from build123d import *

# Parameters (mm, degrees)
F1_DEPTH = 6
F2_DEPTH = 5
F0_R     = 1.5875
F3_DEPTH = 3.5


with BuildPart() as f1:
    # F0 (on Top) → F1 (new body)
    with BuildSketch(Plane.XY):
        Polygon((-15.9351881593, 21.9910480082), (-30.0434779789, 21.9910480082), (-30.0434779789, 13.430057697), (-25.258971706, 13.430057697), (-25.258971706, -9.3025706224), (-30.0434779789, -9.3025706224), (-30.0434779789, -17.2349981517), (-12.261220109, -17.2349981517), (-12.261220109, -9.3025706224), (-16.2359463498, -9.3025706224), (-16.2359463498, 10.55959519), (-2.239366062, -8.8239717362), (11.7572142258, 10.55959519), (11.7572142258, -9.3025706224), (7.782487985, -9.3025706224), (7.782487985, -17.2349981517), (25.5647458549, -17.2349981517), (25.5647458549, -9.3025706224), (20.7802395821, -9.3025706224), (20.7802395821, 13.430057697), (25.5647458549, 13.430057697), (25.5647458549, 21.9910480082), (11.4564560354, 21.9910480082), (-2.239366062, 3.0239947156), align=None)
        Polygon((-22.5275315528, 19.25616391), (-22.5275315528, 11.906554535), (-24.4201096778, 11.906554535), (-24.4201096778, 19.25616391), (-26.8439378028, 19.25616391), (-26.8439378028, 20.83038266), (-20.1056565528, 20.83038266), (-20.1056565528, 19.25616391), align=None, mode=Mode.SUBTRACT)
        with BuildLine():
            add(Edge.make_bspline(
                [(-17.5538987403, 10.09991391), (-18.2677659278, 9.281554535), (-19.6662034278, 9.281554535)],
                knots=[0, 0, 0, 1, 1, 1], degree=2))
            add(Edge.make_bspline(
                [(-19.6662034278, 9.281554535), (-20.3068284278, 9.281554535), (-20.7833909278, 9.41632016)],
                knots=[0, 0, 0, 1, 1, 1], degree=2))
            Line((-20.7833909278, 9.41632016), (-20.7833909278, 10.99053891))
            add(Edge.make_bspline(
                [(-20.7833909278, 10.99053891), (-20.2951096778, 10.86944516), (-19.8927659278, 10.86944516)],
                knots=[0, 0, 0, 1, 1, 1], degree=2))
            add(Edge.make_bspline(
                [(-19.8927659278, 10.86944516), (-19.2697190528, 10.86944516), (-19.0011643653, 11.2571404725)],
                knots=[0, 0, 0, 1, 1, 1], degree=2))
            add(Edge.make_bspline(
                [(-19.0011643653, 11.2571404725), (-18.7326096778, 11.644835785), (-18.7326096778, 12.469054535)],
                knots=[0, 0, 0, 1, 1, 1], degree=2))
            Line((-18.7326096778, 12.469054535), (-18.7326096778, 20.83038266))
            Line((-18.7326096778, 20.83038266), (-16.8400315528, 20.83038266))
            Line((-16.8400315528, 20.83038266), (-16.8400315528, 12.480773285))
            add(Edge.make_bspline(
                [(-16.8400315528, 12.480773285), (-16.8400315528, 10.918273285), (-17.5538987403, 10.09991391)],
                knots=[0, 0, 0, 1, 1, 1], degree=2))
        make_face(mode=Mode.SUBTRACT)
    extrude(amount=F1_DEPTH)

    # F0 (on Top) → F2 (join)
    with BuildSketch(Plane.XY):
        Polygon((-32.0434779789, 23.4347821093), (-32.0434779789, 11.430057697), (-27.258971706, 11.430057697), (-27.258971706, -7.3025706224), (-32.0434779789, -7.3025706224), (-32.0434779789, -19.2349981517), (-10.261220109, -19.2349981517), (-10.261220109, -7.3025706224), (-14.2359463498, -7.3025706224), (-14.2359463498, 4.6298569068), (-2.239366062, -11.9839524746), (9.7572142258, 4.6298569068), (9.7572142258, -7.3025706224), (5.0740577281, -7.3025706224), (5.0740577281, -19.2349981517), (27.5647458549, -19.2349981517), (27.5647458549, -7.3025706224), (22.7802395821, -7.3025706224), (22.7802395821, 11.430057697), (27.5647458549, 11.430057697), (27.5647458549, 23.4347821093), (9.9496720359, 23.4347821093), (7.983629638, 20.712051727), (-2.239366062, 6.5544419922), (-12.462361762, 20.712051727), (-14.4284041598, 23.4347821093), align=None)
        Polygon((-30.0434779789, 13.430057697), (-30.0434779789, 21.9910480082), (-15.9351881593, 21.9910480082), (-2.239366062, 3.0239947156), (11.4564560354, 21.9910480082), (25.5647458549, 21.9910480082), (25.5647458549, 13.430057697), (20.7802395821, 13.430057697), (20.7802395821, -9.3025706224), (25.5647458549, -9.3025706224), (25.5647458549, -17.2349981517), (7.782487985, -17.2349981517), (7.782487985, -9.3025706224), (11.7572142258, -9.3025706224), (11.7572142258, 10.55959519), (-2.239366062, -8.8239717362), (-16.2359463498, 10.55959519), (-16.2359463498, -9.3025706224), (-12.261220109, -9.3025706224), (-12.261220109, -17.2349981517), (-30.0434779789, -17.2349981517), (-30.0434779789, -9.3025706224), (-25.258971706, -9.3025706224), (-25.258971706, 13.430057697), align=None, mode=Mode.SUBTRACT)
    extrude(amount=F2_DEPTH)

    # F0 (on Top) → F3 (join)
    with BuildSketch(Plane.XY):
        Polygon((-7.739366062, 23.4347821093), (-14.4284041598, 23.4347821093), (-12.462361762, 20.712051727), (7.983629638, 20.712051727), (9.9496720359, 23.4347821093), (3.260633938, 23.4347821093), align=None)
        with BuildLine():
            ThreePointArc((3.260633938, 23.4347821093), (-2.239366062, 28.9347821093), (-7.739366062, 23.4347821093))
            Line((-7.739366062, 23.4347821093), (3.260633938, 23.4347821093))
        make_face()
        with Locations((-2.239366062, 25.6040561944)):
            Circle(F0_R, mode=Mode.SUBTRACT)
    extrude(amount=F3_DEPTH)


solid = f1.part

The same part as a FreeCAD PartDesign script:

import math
import FreeCAD as App
import Part
import Sketcher
from FreeCAD import Vector
Q = App.Units.Quantity

doc = App.newDocument("Part")
body = doc.addObject("PartDesign::Body", "Body")

# Sketch on XY plane
sketch1 = body.newObject("Sketcher::SketchObject", "Sketch")
sketch1.AttachmentSupport = (doc.getObject("XY_Plane"), [""])
sketch1.MapMode = "FlatFace"
sketch1.addGeometry(Part.LineSegment(Vector(-15.935188, 21.991048, 0), Vector(-30.043478, 21.991048, 0)), False)
sketch1.addGeometry(Part.LineSegment(Vector(-30.043478, 21.991048, 0), Vector(-30.043478, 13.430058, 0)), False)
sketch1.addGeometry(Part.LineSegment(Vector(-30.043478, 13.430058, 0), Vector(-25.258972, 13.430058, 0)), False)
sketch1.addGeometry(Part.LineSegment(Vector(-25.258972, 13.430058, 0), Vector(-25.258972, -9.302571, 0)), False)
sketch1.addGeometry(Part.LineSegment(Vector(-25.258972, -9.302571, 0), Vector(-30.043478, -9.302571, 0)), False)
sketch1.addGeometry(Part.LineSegment(Vector(-30.043478, -9.302571, 0), Vector(-30.043478, -17.234998, 0)), False)
sketch1.addGeometry(Part.LineSegment(Vector(-30.043478, -17.234998, 0), Vector(-12.26122, -17.234998, 0)), False)
sketch1.addGeometry(Part.LineSegment(Vector(-12.26122, -17.234998, 0), Vector(-12.26122, -9.302571, 0)), False)
sketch1.addGeometry(Part.LineSegment(Vector(-12.26122, -9.302571, 0), Vector(-16.235946, -9.302571, 0)), False)
sketch1.addGeometry(Part.LineSegment(Vector(-16.235946, -9.302571, 0), Vector(-16.235946, 10.559595, 0)), False)
sketch1.addGeometry(Part.LineSegment(Vector(-16.235946, 10.559595, 0), Vector(-2.239366, -8.823972, 0)), False)
sketch1.addGeometry(Part.LineSegment(Vector(-2.239366, -8.823972, 0), Vector(11.757214, 10.559595, 0)), False)
sketch1.addGeometry(Part.LineSegment(Vector(11.757214, 10.559595, 0), Vector(11.757214, -9.302571, 0)), False)
sketch1.addGeometry(Part.LineSegment(Vector(11.757214, -9.302571, 0), Vector(7.782488, -9.302571, 0)), False)
sketch1.addGeometry(Part.LineSegment(Vector(7.782488, -9.302571, 0), Vector(7.782488, -17.234998, 0)), False)
sketch1.addGeometry(Part.LineSegment(Vector(7.782488, -17.234998, 0), Vector(25.564746, -17.234998, 0)), False)
sketch1.addGeometry(Part.LineSegment(Vector(25.564746, -17.234998, 0), Vector(25.564746, -9.302571, 0)), False)
sketch1.addGeometry(Part.LineSegment(Vector(25.564746, -9.302571, 0), Vector(20.78024, -9.302571, 0)), False)
sketch1.addGeometry(Part.LineSegment(Vector(20.78024, -9.302571, 0), Vector(20.78024, 13.430058, 0)), False)
sketch1.addGeometry(Part.LineSegment(Vector(20.78024, 13.430058, 0), Vector(25.564746, 13.430058, 0)), False)
sketch1.addGeometry(Part.LineSegment(Vector(25.564746, 13.430058, 0), Vector(25.564746, 21.991048, 0)), False)
sketch1.addGeometry(Part.LineSegment(Vector(25.564746, 21.991048, 0), Vector(11.456456, 21.991048, 0)), False)
sketch1.addGeometry(Part.LineSegment(Vector(11.456456, 21.991048, 0), Vector(-2.239366, 3.023995, 0)), False)
sketch1.addGeometry(Part.LineSegment(Vector(-2.239366, 3.023995, 0), Vector(-15.935188, 21.991048, 0)), False)
sketch1.addGeometry(Part.LineSegment(Vector(-20.105657, 19.256164, 0), Vector(-22.527532, 19.256164, 0)), False)
sketch1.addGeometry(Part.LineSegment(Vector(-22.527532, 19.256164, 0), Vector(-22.527532, 11.906555, 0)), False)
sketch1.addGeometry(Part.LineSegment(Vector(-22.527532, 11.906555, 0), Vector(-24.42011, 11.906555, 0)), False)
sketch1.addGeometry(Part.LineSegment(Vector(-24.42011, 11.906555, 0), Vector(-24.42011, 19.256164, 0)), False)
sketch1.addGeometry(Part.LineSegment(Vector(-24.42011, 19.256164, 0), Vector(-26.843938, 19.256164, 0)), False)
sketch1.addGeometry(Part.LineSegment(Vector(-26.843938, 19.256164, 0), Vector(-26.843938, 20.830383, 0)), False)
sketch1.addGeometry(Part.LineSegment(Vector(-26.843938, 20.830383, 0), Vector(-20.105657, 20.830383, 0)), False)
sketch1.addGeometry(Part.LineSegment(Vector(-20.105657, 20.830383, 0), Vector(-20.105657, 19.256164, 0)), False)
sketch1.addGeometry(Part.BSplineCurve([Vector(-16.840032, 12.480773, 0), Vector(-16.840032, 10.918273, 0), Vector(-18.267766, 9.281555, 0), Vector(-20.306828, 9.281555, 0), Vector(-20.783391, 9.41632, 0)], [3, 1, 1, 3], [0, 1, 2, 2.458100559], False, 2, [1, 1, 1, 1, 1], False), False)
sketch1.addGeometry(Part.LineSegment(Vector(-20.783391, 9.41632, 0), Vector(-20.783391, 10.990539, 0)), False)
sketch1.addGeometry(Part.BSplineCurve([Vector(-20.783391, 10.990539, 0), Vector(-20.29511, 10.869445, 0), Vector(-19.269719, 10.869445, 0), Vector(-18.73261, 11.644836, 0), Vector(-18.73261, 12.469055, 0)], [3, 1, 1, 3], [0, 1, 2.548543689, 4.097087379], False, 2, [1, 1, 1, 1, 1], False), False)
sketch1.addGeometry(Part.LineSegment(Vector(-18.73261, 12.469055, 0), Vector(-18.73261, 20.830383, 0)), False)
sketch1.addGeometry(Part.LineSegment(Vector(-18.73261, 20.830383, 0), Vector(-16.840032, 20.830383, 0)), False)
sketch1.addGeometry(Part.LineSegment(Vector(-16.840032, 20.830383, 0), Vector(-16.840032, 12.480773, 0)), False)
sketch1.addConstraint(Sketcher.Constraint("Block", 32))
sketch1.addConstraint(Sketcher.Constraint("Block", 34))
sketch1.addConstraint(Sketcher.Constraint("Coincident", 0, 2, 1, 1))
sketch1.addConstraint(Sketcher.Constraint("Coincident", 1, 2, 2, 1))
sketch1.addConstraint(Sketcher.Constraint("Coincident", 2, 2, 3, 1))
sketch1.addConstraint(Sketcher.Constraint("Coincident", 3, 2, 4, 1))
sketch1.addConstraint(Sketcher.Constraint("Coincident", 4, 2, 5, 1))
sketch1.addConstraint(Sketcher.Constraint("Coincident", 5, 2, 6, 1))
sketch1.addConstraint(Sketcher.Constraint("Coincident", 6, 2, 7, 1))
sketch1.addConstraint(Sketcher.Constraint("Coincident", 7, 2, 8, 1))
sketch1.addConstraint(Sketcher.Constraint("Coincident", 8, 2, 9, 1))
sketch1.addConstraint(Sketcher.Constraint("Coincident", 9, 2, 10, 1))
sketch1.addConstraint(Sketcher.Constraint("Coincident", 10, 2, 11, 1))
sketch1.addConstraint(Sketcher.Constraint("Coincident", 11, 2, 12, 1))
sketch1.addConstraint(Sketcher.Constraint("Coincident", 12, 2, 13, 1))
sketch1.addConstraint(Sketcher.Constraint("Coincident", 13, 2, 14, 1))
sketch1.addConstraint(Sketcher.Constraint("Coincident", 14, 2, 15, 1))
sketch1.addConstraint(Sketcher.Constraint("Coincident", 15, 2, 16, 1))
sketch1.addConstraint(Sketcher.Constraint("Coincident", 16, 2, 17, 1))
sketch1.addConstraint(Sketcher.Constraint("Coincident", 17, 2, 18, 1))
sketch1.addConstraint(Sketcher.Constraint("Coincident", 18, 2, 19, 1))
sketch1.addConstraint(Sketcher.Constraint("Coincident", 19, 2, 20, 1))
sketch1.addConstraint(Sketcher.Constraint("Coincident", 20, 2, 21, 1))
sketch1.addConstraint(Sketcher.Constraint("Coincident", 21, 2, 22, 1))
sketch1.addConstraint(Sketcher.Constraint("Coincident", 22, 2, 23, 1))
sketch1.addConstraint(Sketcher.Constraint("Coincident", 23, 2, 0, 1))
sketch1.addConstraint(Sketcher.Constraint("Coincident", 24, 2, 25, 1))
sketch1.addConstraint(Sketcher.Constraint("Coincident", 25, 2, 26, 1))
sketch1.addConstraint(Sketcher.Constraint("Coincident", 26, 2, 27, 1))
sketch1.addConstraint(Sketcher.Constraint("Coincident", 27, 2, 28, 1))
sketch1.addConstraint(Sketcher.Constraint("Coincident", 28, 2, 29, 1))
sketch1.addConstraint(Sketcher.Constraint("Coincident", 29, 2, 30, 1))
sketch1.addConstraint(Sketcher.Constraint("Coincident", 30, 2, 31, 1))
sketch1.addConstraint(Sketcher.Constraint("Coincident", 31, 2, 24, 1))
sketch1.addConstraint(Sketcher.Constraint("Coincident", 32, 2, 33, 1))
sketch1.addConstraint(Sketcher.Constraint("Coincident", 33, 2, 34, 1))
sketch1.addConstraint(Sketcher.Constraint("Coincident", 34, 2, 35, 1))
sketch1.addConstraint(Sketcher.Constraint("Coincident", 35, 2, 36, 1))
sketch1.addConstraint(Sketcher.Constraint("Coincident", 36, 2, 37, 1))
sketch1.addConstraint(Sketcher.Constraint("Coincident", 37, 2, 32, 1))
sketch1.addConstraint(Sketcher.Constraint("Horizontal", 0))
sketch1.addConstraint(Sketcher.Constraint("Vertical", 1))
sketch1.addConstraint(Sketcher.Constraint("Horizontal", 2))
sketch1.addConstraint(Sketcher.Constraint("Vertical", 3))
sketch1.addConstraint(Sketcher.Constraint("Horizontal", 4))
sketch1.addConstraint(Sketcher.Constraint("Vertical", 5))
sketch1.addConstraint(Sketcher.Constraint("Horizontal", 6))
sketch1.addConstraint(Sketcher.Constraint("Vertical", 7))
sketch1.addConstraint(Sketcher.Constraint("Horizontal", 8))
sketch1.addConstraint(Sketcher.Constraint("Vertical", 9))
sketch1.addConstraint(Sketcher.Constraint("Vertical", 12))
sketch1.addConstraint(Sketcher.Constraint("Horizontal", 13))
sketch1.addConstraint(Sketcher.Constraint("Vertical", 14))
sketch1.addConstraint(Sketcher.Constraint("Horizontal", 15))
sketch1.addConstraint(Sketcher.Constraint("Vertical", 16))
sketch1.addConstraint(Sketcher.Constraint("Horizontal", 17))
sketch1.addConstraint(Sketcher.Constraint("Vertical", 18))
sketch1.addConstraint(Sketcher.Constraint("Horizontal", 19))
sketch1.addConstraint(Sketcher.Constraint("Vertical", 20))
sketch1.addConstraint(Sketcher.Constraint("Horizontal", 21))
sketch1.addConstraint(Sketcher.Constraint("Horizontal", 24))
sketch1.addConstraint(Sketcher.Constraint("Vertical", 25))
sketch1.addConstraint(Sketcher.Constraint("Horizontal", 26))
sketch1.addConstraint(Sketcher.Constraint("Vertical", 27))
sketch1.addConstraint(Sketcher.Constraint("Horizontal", 28))
sketch1.addConstraint(Sketcher.Constraint("Vertical", 29))
sketch1.addConstraint(Sketcher.Constraint("Horizontal", 30))
sketch1.addConstraint(Sketcher.Constraint("Vertical", 31))
sketch1.addConstraint(Sketcher.Constraint("Vertical", 35))
sketch1.addConstraint(Sketcher.Constraint("Horizontal", 36))
sketch1.addConstraint(Sketcher.Constraint("Vertical", 37))
sketch1.addConstraint(Sketcher.Constraint("Parallel", 11, 22))
sketch1.addConstraint(Sketcher.Constraint("Parallel", 10, 23))
sketch1.addConstraint(Sketcher.Constraint("Horizontal", 4, 2, 7, 2))
sketch1.addConstraint(Sketcher.Constraint("Horizontal", 9, 2, 11, 2))
sketch1.addConstraint(Sketcher.Constraint("Horizontal", 8, 2, 12, 2))
sketch1.addConstraint(Sketcher.Constraint("Horizontal", 6, 2, 14, 2))
sketch1.addConstraint(Sketcher.Constraint("Horizontal", 13, 2, 16, 2))
sketch1.addConstraint(Sketcher.Constraint("Horizontal", 2, 2, 18, 2))
sketch1.addConstraint(Sketcher.Constraint("Horizontal", 0, 2, 20, 2))
sketch1.addConstraint(Sketcher.Constraint("Horizontal", 24, 2, 27, 2))
sketch1.addConstraint(Sketcher.Constraint("Horizontal", 30, 2, 35, 2))
sketch1.addConstraint(Sketcher.Constraint("Vertical", 1, 2, 4, 2))
sketch1.addConstraint(Sketcher.Constraint("Vertical", 16, 2, 19, 2))
sketch1.addConstraint(Sketcher.Constraint("Vertical", 10, 2, 22, 2))
sketch1.addConstraint(Sketcher.Constraint("Equal", 8, 13))
sketch1.addConstraint(Sketcher.Constraint("Equal", 6, 15))
sketch1.addConstraint(Sketcher.Constraint("Equal", 4, 17))
sketch1.addConstraint(Sketcher.Constraint("Equal", 0, 21))
sketch1.addConstraint(Sketcher.Constraint("Equal", 26, 36))
sketch1.addConstraint(Sketcher.Constraint("Equal", 31, 33))
sketch1.addConstraint(Sketcher.Constraint("DistanceY", 5, 2, -1, 1, Q("17.234998 mm")))
sketch1.addConstraint(Sketcher.Constraint("DistanceX", 0, 2, 0, 1, Q("14.10829 mm")))
sketch1.addConstraint(Sketcher.Constraint("DistanceX", 28, 2, 28, 1, Q("2.423828 mm")))
sketch1.addConstraint(Sketcher.Constraint("DistanceX", 30, 1, 30, 2, Q("6.738281 mm")))
sketch1.addConstraint(Sketcher.Constraint("DistanceY", 1, 2, 1, 1, Q("8.56099 mm")))
sketch1.addConstraint(Sketcher.Constraint("DistanceY", 3, 2, 3, 1, Q("22.732628 mm")))
sketch1.addConstraint(Sketcher.Constraint("DistanceY", 25, 2, 25, 1, Q("7.349609 mm")))
sketch1.addConstraint(Sketcher.Constraint("DistanceY", 35, 1, 35, 2, Q("8.361328 mm")))
sketch1.addConstraint(Sketcher.Constraint("DistanceY", 7, 2, 10, 2, Q("0.478599 mm")))
sketch1.addConstraint(Sketcher.Constraint("DistanceY", 22, 2, 9, 2, Q("7.5356 mm")))
sketch1.addConstraint(Sketcher.Constraint("DistanceX", 27, 2, 35, 2, Q("5.6875 mm")))
sketch1.addConstraint(Sketcher.Constraint("Distance", 10, Q("23.908721 mm")))
sketch1.addConstraint(Sketcher.Constraint("Distance", 22, Q("23.394971 mm")))
sketch1.addConstraint(Sketcher.Constraint("DistanceX", 2, 1, 2, 2, Q("4.784506 mm")))
sketch1.addConstraint(Sketcher.Constraint("DistanceX", 6, 1, 6, 2, Q("17.782258 mm")))
sketch1.addConstraint(Sketcher.Constraint("DistanceY", 5, 2, 5, 1, Q("7.932428 mm")))
sketch1.addConstraint(Sketcher.Constraint("DistanceX", 2, 2, -1, 1, Q("25.258972 mm")))
pad1 = body.newObject("PartDesign::Pad", "Pad")
pad1.Profile = sketch1
pad1.Length = 6

# Sketch on XY plane
sketch2 = body.newObject("Sketcher::SketchObject", "Sketch001")
sketch2.AttachmentSupport = (doc.getObject("XY_Plane"), [""])
sketch2.MapMode = "FlatFace"
sketch2.addGeometry(Part.LineSegment(Vector(-32, 23.4, 0), Vector(-32, 11.4, 0)), False)
sketch2.addGeometry(Part.LineSegment(Vector(-32, 11.4, 0), Vector(-27.3, 11.4, 0)), False)
sketch2.addGeometry(Part.LineSegment(Vector(-27.3, 11.4, 0), Vector(-27.3, -7.3, 0)), False)
sketch2.addGeometry(Part.LineSegment(Vector(-27.3, -7.3, 0), Vector(-32, -7.3, 0)), False)
sketch2.addGeometry(Part.LineSegment(Vector(-32, -7.3, 0), Vector(-32, -19.2, 0)), False)
sketch2.addGeometry(Part.LineSegment(Vector(-32, -19.2, 0), Vector(-10.3, -19.2, 0)), False)
sketch2.addGeometry(Part.LineSegment(Vector(-10.3, -19.2, 0), Vector(-10.3, -7.3, 0)), False)
sketch2.addGeometry(Part.LineSegment(Vector(-10.3, -7.3, 0), Vector(-14.2, -7.3, 0)), False)
sketch2.addGeometry(Part.LineSegment(Vector(-14.2, -7.3, 0), Vector(-14.2, 4.6, 0)), False)
sketch2.addGeometry(Part.LineSegment(Vector(-14.2, 4.6, 0), Vector(-2.2, -12, 0)), False)
sketch2.addGeometry(Part.LineSegment(Vector(-2.2, -12, 0), Vector(9.8, 4.6, 0)), False)
sketch2.addGeometry(Part.LineSegment(Vector(9.8, 4.6, 0), Vector(9.8, -7.3, 0)), False)
sketch2.addGeometry(Part.LineSegment(Vector(9.8, -7.3, 0), Vector(5.1, -7.3, 0)), False)
sketch2.addGeometry(Part.LineSegment(Vector(5.1, -7.3, 0), Vector(5.1, -19.2, 0)), False)
sketch2.addGeometry(Part.LineSegment(Vector(5.1, -19.2, 0), Vector(27.6, -19.2, 0)), False)
sketch2.addGeometry(Part.LineSegment(Vector(27.6, -19.2, 0), Vector(27.6, -7.3, 0)), False)
sketch2.addGeometry(Part.LineSegment(Vector(27.6, -7.3, 0), Vector(22.8, -7.3, 0)), False)
sketch2.addGeometry(Part.LineSegment(Vector(22.8, -7.3, 0), Vector(22.8, 11.4, 0)), False)
sketch2.addGeometry(Part.LineSegment(Vector(22.8, 11.4, 0), Vector(27.6, 11.4, 0)), False)
sketch2.addGeometry(Part.LineSegment(Vector(27.6, 11.4, 0), Vector(27.6, 23.4, 0)), False)
sketch2.addGeometry(Part.LineSegment(Vector(27.6, 23.4, 0), Vector(9.9, 23.4, 0)), False)
sketch2.addGeometry(Part.LineSegment(Vector(9.9, 23.4, 0), Vector(8, 20.7, 0)), False)
sketch2.addGeometry(Part.LineSegment(Vector(8, 20.7, 0), Vector(-2.2, 6.6, 0)), False)
sketch2.addGeometry(Part.LineSegment(Vector(-2.2, 6.6, 0), Vector(-12.5, 20.7, 0)), False)
sketch2.addGeometry(Part.LineSegment(Vector(-12.5, 20.7, 0), Vector(-14.4, 23.4, 0)), False)
sketch2.addGeometry(Part.LineSegment(Vector(-14.4, 23.4, 0), Vector(-32, 23.4, 0)), False)
sketch2.addGeometry(Part.LineSegment(Vector(-25.3, 13.4, 0), Vector(-30, 13.4, 0)), False)
sketch2.addGeometry(Part.LineSegment(Vector(-30, 13.4, 0), Vector(-30, 22, 0)), False)
sketch2.addGeometry(Part.LineSegment(Vector(-30, 22, 0), Vector(-15.9, 22, 0)), False)
sketch2.addGeometry(Part.LineSegment(Vector(-15.9, 22, 0), Vector(-2.2, 3, 0)), False)
sketch2.addGeometry(Part.LineSegment(Vector(-2.2, 3, 0), Vector(11.5, 22, 0)), False)
sketch2.addGeometry(Part.LineSegment(Vector(11.5, 22, 0), Vector(25.6, 22, 0)), False)
sketch2.addGeometry(Part.LineSegment(Vector(25.6, 22, 0), Vector(25.6, 13.4, 0)), False)
sketch2.addGeometry(Part.LineSegment(Vector(25.6, 13.4, 0), Vector(20.8, 13.4, 0)), False)
sketch2.addGeometry(Part.LineSegment(Vector(20.8, 13.4, 0), Vector(20.8, -9.3, 0)), False)
sketch2.addGeometry(Part.LineSegment(Vector(20.8, -9.3, 0), Vector(25.6, -9.3, 0)), False)
sketch2.addGeometry(Part.LineSegment(Vector(25.6, -9.3, 0), Vector(25.6, -17.2, 0)), False)
sketch2.addGeometry(Part.LineSegment(Vector(25.6, -17.2, 0), Vector(7.8, -17.2, 0)), False)
sketch2.addGeometry(Part.LineSegment(Vector(7.8, -17.2, 0), Vector(7.8, -9.3, 0)), False)
sketch2.addGeometry(Part.LineSegment(Vector(7.8, -9.3, 0), Vector(11.8, -9.3, 0)), False)
sketch2.addGeometry(Part.LineSegment(Vector(11.8, -9.3, 0), Vector(11.8, 10.6, 0)), False)
sketch2.addGeometry(Part.LineSegment(Vector(11.8, 10.6, 0), Vector(-2.2, -8.8, 0)), False)
sketch2.addGeometry(Part.LineSegment(Vector(-2.2, -8.8, 0), Vector(-16.2, 10.6, 0)), False)
sketch2.addGeometry(Part.LineSegment(Vector(-16.2, 10.6, 0), Vector(-16.2, -9.3, 0)), False)
sketch2.addGeometry(Part.LineSegment(Vector(-16.2, -9.3, 0), Vector(-12.3, -9.3, 0)), False)
sketch2.addGeometry(Part.LineSegment(Vector(-12.3, -9.3, 0), Vector(-12.3, -17.2, 0)), False)
sketch2.addGeometry(Part.LineSegment(Vector(-12.3, -17.2, 0), Vector(-30, -17.2, 0)), False)
sketch2.addGeometry(Part.LineSegment(Vector(-30, -17.2, 0), Vector(-30, -9.3, 0)), False)
sketch2.addGeometry(Part.LineSegment(Vector(-30, -9.3, 0), Vector(-25.3, -9.3, 0)), False)
sketch2.addGeometry(Part.LineSegment(Vector(-25.3, -9.3, 0), Vector(-25.3, 13.4, 0)), False)
sketch2.addConstraint(Sketcher.Constraint("Coincident", 0, 2, 1, 1))
sketch2.addConstraint(Sketcher.Constraint("Coincident", 1, 2, 2, 1))
sketch2.addConstraint(Sketcher.Constraint("Coincident", 2, 2, 3, 1))
sketch2.addConstraint(Sketcher.Constraint("Coincident", 3, 2, 4, 1))
sketch2.addConstraint(Sketcher.Constraint("Coincident", 4, 2, 5, 1))
sketch2.addConstraint(Sketcher.Constraint("Coincident", 5, 2, 6, 1))
sketch2.addConstraint(Sketcher.Constraint("Coincident", 6, 2, 7, 1))
sketch2.addConstraint(Sketcher.Constraint("Coincident", 7, 2, 8, 1))
sketch2.addConstraint(Sketcher.Constraint("Coincident", 8, 2, 9, 1))
sketch2.addConstraint(Sketcher.Constraint("Coincident", 9, 2, 10, 1))
sketch2.addConstraint(Sketcher.Constraint("Coincident", 10, 2, 11, 1))
sketch2.addConstraint(Sketcher.Constraint("Coincident", 11, 2, 12, 1))
sketch2.addConstraint(Sketcher.Constraint("Coincident", 12, 2, 13, 1))
sketch2.addConstraint(Sketcher.Constraint("Coincident", 13, 2, 14, 1))
sketch2.addConstraint(Sketcher.Constraint("Coincident", 14, 2, 15, 1))
sketch2.addConstraint(Sketcher.Constraint("Coincident", 15, 2, 16, 1))
sketch2.addConstraint(Sketcher.Constraint("Coincident", 16, 2, 17, 1))
sketch2.addConstraint(Sketcher.Constraint("Coincident", 17, 2, 18, 1))
sketch2.addConstraint(Sketcher.Constraint("Coincident", 18, 2, 19, 1))
sketch2.addConstraint(Sketcher.Constraint("Coincident", 19, 2, 20, 1))
sketch2.addConstraint(Sketcher.Constraint("Coincident", 20, 2, 21, 1))
sketch2.addConstraint(Sketcher.Constraint("Coincident", 21, 2, 22, 1))
sketch2.addConstraint(Sketcher.Constraint("Coincident", 22, 2, 23, 1))
sketch2.addConstraint(Sketcher.Constraint("Coincident", 23, 2, 24, 1))
sketch2.addConstraint(Sketcher.Constraint("Coincident", 24, 2, 25, 1))
sketch2.addConstraint(Sketcher.Constraint("Coincident", 25, 2, 0, 1))
sketch2.addConstraint(Sketcher.Constraint("Coincident", 26, 2, 27, 1))
sketch2.addConstraint(Sketcher.Constraint("Coincident", 27, 2, 28, 1))
sketch2.addConstraint(Sketcher.Constraint("Coincident", 28, 2, 29, 1))
sketch2.addConstraint(Sketcher.Constraint("Coincident", 29, 2, 30, 1))
sketch2.addConstraint(Sketcher.Constraint("Coincident", 30, 2, 31, 1))
sketch2.addConstraint(Sketcher.Constraint("Coincident", 31, 2, 32, 1))
sketch2.addConstraint(Sketcher.Constraint("Coincident", 32, 2, 33, 1))
sketch2.addConstraint(Sketcher.Constraint("Coincident", 33, 2, 34, 1))
sketch2.addConstraint(Sketcher.Constraint("Coincident", 34, 2, 35, 1))
sketch2.addConstraint(Sketcher.Constraint("Coincident", 35, 2, 36, 1))
sketch2.addConstraint(Sketcher.Constraint("Coincident", 36, 2, 37, 1))
sketch2.addConstraint(Sketcher.Constraint("Coincident", 37, 2, 38, 1))
sketch2.addConstraint(Sketcher.Constraint("Coincident", 38, 2, 39, 1))
sketch2.addConstraint(Sketcher.Constraint("Coincident", 39, 2, 40, 1))
sketch2.addConstraint(Sketcher.Constraint("Coincident", 40, 2, 41, 1))
sketch2.addConstraint(Sketcher.Constraint("Coincident", 41, 2, 42, 1))
sketch2.addConstraint(Sketcher.Constraint("Coincident", 42, 2, 43, 1))
sketch2.addConstraint(Sketcher.Constraint("Coincident", 43, 2, 44, 1))
sketch2.addConstraint(Sketcher.Constraint("Coincident", 44, 2, 45, 1))
sketch2.addConstraint(Sketcher.Constraint("Coincident", 45, 2, 46, 1))
sketch2.addConstraint(Sketcher.Constraint("Coincident", 46, 2, 47, 1))
sketch2.addConstraint(Sketcher.Constraint("Coincident", 47, 2, 48, 1))
sketch2.addConstraint(Sketcher.Constraint("Coincident", 48, 2, 49, 1))
sketch2.addConstraint(Sketcher.Constraint("Coincident", 49, 2, 26, 1))
sketch2.addConstraint(Sketcher.Constraint("Vertical", 0))
sketch2.addConstraint(Sketcher.Constraint("Horizontal", 1))
sketch2.addConstraint(Sketcher.Constraint("Vertical", 2))
sketch2.addConstraint(Sketcher.Constraint("Horizontal", 3))
sketch2.addConstraint(Sketcher.Constraint("Vertical", 4))
sketch2.addConstraint(Sketcher.Constraint("Horizontal", 5))
sketch2.addConstraint(Sketcher.Constraint("Vertical", 6))
sketch2.addConstraint(Sketcher.Constraint("Horizontal", 7))
sketch2.addConstraint(Sketcher.Constraint("Vertical", 8))
sketch2.addConstraint(Sketcher.Constraint("Vertical", 11))
sketch2.addConstraint(Sketcher.Constraint("Horizontal", 12))
sketch2.addConstraint(Sketcher.Constraint("Vertical", 13))
sketch2.addConstraint(Sketcher.Constraint("Horizontal", 14))
sketch2.addConstraint(Sketcher.Constraint("Vertical", 15))
sketch2.addConstraint(Sketcher.Constraint("Horizontal", 16))
sketch2.addConstraint(Sketcher.Constraint("Vertical", 17))
sketch2.addConstraint(Sketcher.Constraint("Horizontal", 18))
sketch2.addConstraint(Sketcher.Constraint("Vertical", 19))
sketch2.addConstraint(Sketcher.Constraint("Horizontal", 20))
sketch2.addConstraint(Sketcher.Constraint("Horizontal", 25))
sketch2.addConstraint(Sketcher.Constraint("Horizontal", 26))
sketch2.addConstraint(Sketcher.Constraint("Vertical", 27))
sketch2.addConstraint(Sketcher.Constraint("Horizontal", 28))
sketch2.addConstraint(Sketcher.Constraint("Horizontal", 31))
sketch2.addConstraint(Sketcher.Constraint("Vertical", 32))
sketch2.addConstraint(Sketcher.Constraint("Horizontal", 33))
sketch2.addConstraint(Sketcher.Constraint("Vertical", 34))
sketch2.addConstraint(Sketcher.Constraint("Horizontal", 35))
sketch2.addConstraint(Sketcher.Constraint("Vertical", 36))
sketch2.addConstraint(Sketcher.Constraint("Horizontal", 37))
sketch2.addConstraint(Sketcher.Constraint("Vertical", 38))
sketch2.addConstraint(Sketcher.Constraint("Horizontal", 39))
sketch2.addConstraint(Sketcher.Constraint("Vertical", 40))
sketch2.addConstraint(Sketcher.Constraint("Vertical", 43))
sketch2.addConstraint(Sketcher.Constraint("Horizontal", 44))
sketch2.addConstraint(Sketcher.Constraint("Vertical", 45))
sketch2.addConstraint(Sketcher.Constraint("Horizontal", 46))
sketch2.addConstraint(Sketcher.Constraint("Vertical", 47))
sketch2.addConstraint(Sketcher.Constraint("Horizontal", 48))
sketch2.addConstraint(Sketcher.Constraint("Vertical", 49))
sketch2.addConstraint(Sketcher.Constraint("Parallel", 10, 21))
sketch2.addConstraint(Sketcher.Constraint("Parallel", 21, 22))
sketch2.addConstraint(Sketcher.Constraint("Parallel", 9, 23))
sketch2.addConstraint(Sketcher.Constraint("Parallel", 23, 24))
sketch2.addConstraint(Sketcher.Constraint("Parallel", 24, 29))
sketch2.addConstraint(Sketcher.Constraint("Parallel", 22, 30))
sketch2.addConstraint(Sketcher.Constraint("Parallel", 30, 41))
sketch2.addConstraint(Sketcher.Constraint("Parallel", 29, 42))
sketch2.addConstraint(Sketcher.Constraint("Horizontal", 3, 2, 6, 2))
sketch2.addConstraint(Sketcher.Constraint("Horizontal", 8, 2, 10, 2))
sketch2.addConstraint(Sketcher.Constraint("Horizontal", 7, 2, 11, 2))
sketch2.addConstraint(Sketcher.Constraint("Horizontal", 5, 2, 13, 2))
sketch2.addConstraint(Sketcher.Constraint("Horizontal", 12, 2, 15, 2))
sketch2.addConstraint(Sketcher.Constraint("Horizontal", 1, 2, 17, 2))
sketch2.addConstraint(Sketcher.Constraint("Horizontal", 21, 2, 23, 2))
sketch2.addConstraint(Sketcher.Constraint("Horizontal", 20, 2, 24, 2))
sketch2.addConstraint(Sketcher.Constraint("Horizontal", 28, 2, 30, 2))
sketch2.addConstraint(Sketcher.Constraint("Horizontal", 26, 2, 32, 2))
sketch2.addConstraint(Sketcher.Constraint("Horizontal", 35, 2, 38, 2))
sketch2.addConstraint(Sketcher.Constraint("Horizontal", 40, 2, 42, 2))
sketch2.addConstraint(Sketcher.Constraint("Horizontal", 39, 2, 43, 2))
sketch2.addConstraint(Sketcher.Constraint("Horizontal", 37, 2, 45, 2))
sketch2.addConstraint(Sketcher.Constraint("Horizontal", 44, 2, 47, 2))
sketch2.addConstraint(Sketcher.Constraint("Vertical", 0, 2, 3, 2))
sketch2.addConstraint(Sketcher.Constraint("Vertical", 15, 2, 18, 2))
sketch2.addConstraint(Sketcher.Constraint("Vertical", 9, 2, 22, 2))
sketch2.addConstraint(Sketcher.Constraint("Vertical", 22, 2, 29, 2))
sketch2.addConstraint(Sketcher.Constraint("Vertical", 32, 2, 35, 2))
sketch2.addConstraint(Sketcher.Constraint("Vertical", 29, 2, 41, 2))
sketch2.addConstraint(Sketcher.Constraint("Vertical", 27, 2, 46, 2))
sketch2.addConstraint(Sketcher.Constraint("Equal", 3, 16))
sketch2.addConstraint(Sketcher.Constraint("Equal", 20, 25))
sketch2.addConstraint(Sketcher.Constraint("Equal", 18, 26))
sketch2.addConstraint(Sketcher.Constraint("Equal", 28, 31))
sketch2.addConstraint(Sketcher.Constraint("Equal", 26, 33))
sketch2.addConstraint(Sketcher.Constraint("Equal", 7, 39))
sketch2.addConstraint(Sketcher.Constraint("Equal", 39, 44))
sketch2.addConstraint(Sketcher.Constraint("Equal", 37, 46))
sketch2.addConstraint(Sketcher.Constraint("Equal", 6, 8))
sketch2.addConstraint(Sketcher.Constraint("DistanceX", 0, 2, 26, 2, Q("2 mm")))
sketch2.addConstraint(Sketcher.Constraint("DistanceY", 0, 2, 26, 2, Q("2 mm")))
sketch2.addConstraint(Sketcher.Constraint("DistanceY", 34, 2, 16, 2, Q("2 mm")))
sketch2.addConstraint(Sketcher.Constraint("DistanceY", 14, 2, 36, 2, Q("2 mm")))
sketch2.addConstraint(Sketcher.Constraint("DistanceX", 11, 2, 39, 2, Q("2 mm")))
sketch2.addConstraint(Sketcher.Constraint("DistanceY", 4, 2, -1, 1, Q("19.234998 mm")))
sketch2.addConstraint(Sketcher.Constraint("DistanceX", 14, 1, 14, 2, Q("22.490688 mm")))
sketch2.addConstraint(Sketcher.Constraint("DistanceX", 28, 1, 28, 2, Q("14.10829 mm")))
sketch2.addConstraint(Sketcher.Constraint("DistanceY", 2, 2, 2, 1, Q("18.732628 mm")))
sketch2.addConstraint(Sketcher.Constraint("DistanceY", 27, 1, 27, 2, Q("8.56099 mm")))
sketch2.addConstraint(Sketcher.Constraint("DistanceY", 8, 2, 1, 2, Q("6.800201 mm")))
sketch2.addConstraint(Sketcher.Constraint("DistanceY", 41, 2, 12, 2, Q("1.521401 mm")))
sketch2.addConstraint(Sketcher.Constraint("Distance", 21, Q("3.35836 mm")))
sketch2.addConstraint(Sketcher.Constraint("Distance", 29, Q("23.394971 mm")))
sketch2.addConstraint(Sketcher.Constraint("Distance", 41, Q("23.908721 mm")))
sketch2.addConstraint(Sketcher.Constraint("DistanceX", 1, 1, 1, 2, Q("4.784506 mm")))
sketch2.addConstraint(Sketcher.Constraint("DistanceX", 5, 1, 5, 2, Q("21.782258 mm")))
sketch2.addConstraint(Sketcher.Constraint("DistanceX", 20, 2, 20, 1, Q("17.615074 mm")))
sketch2.addConstraint(Sketcher.Constraint("DistanceY", 0, 2, 0, 1, Q("12.004724 mm")))
sketch2.addConstraint(Sketcher.Constraint("DistanceY", 40, 1, 40, 2, Q("19.862166 mm")))
sketch2.addConstraint(Sketcher.Constraint("DistanceX", 1, 2, -1, 1, Q("27.258972 mm")))
pad2 = body.newObject("PartDesign::Pad", "Pad001")
pad2.Profile = sketch2
pad2.Length = 5

# Sketch on XY plane
sketch3 = body.newObject("Sketcher::SketchObject", "Sketch002")
sketch3.AttachmentSupport = (doc.getObject("XY_Plane"), [""])
sketch3.MapMode = "FlatFace"
sketch3.addGeometry(Part.LineSegment(Vector(-14.4, 23.4, 0), Vector(-12.5, 20.7, 0)), False)
sketch3.addGeometry(Part.LineSegment(Vector(-12.5, 20.7, 0), Vector(8, 20.7, 0)), False)
sketch3.addGeometry(Part.LineSegment(Vector(8, 20.7, 0), Vector(9.9, 23.4, 0)), False)
sketch3.addGeometry(Part.LineSegment(Vector(9.9, 23.4, 0), Vector(3.3, 23.4, 0)), False)
sketch3.addGeometry(Part.ArcOfCircle(Part.Circle(Vector(-2.2, 23.4, 0), Vector(0, 0, 1), 5.5), math.radians(0), math.radians(180)), False)
sketch3.addGeometry(Part.LineSegment(Vector(-7.7, 23.4, 0), Vector(-14.4, 23.4, 0)), False)
sketch3.addGeometry(Part.Circle(Vector(-2.2, 25.6, 0), Vector(0, 0, 1), 1.6), False)
sketch3.addConstraint(Sketcher.Constraint("Coincident", 0, 2, 1, 1))
sketch3.addConstraint(Sketcher.Constraint("Coincident", 1, 2, 2, 1))
sketch3.addConstraint(Sketcher.Constraint("Coincident", 2, 2, 3, 1))
sketch3.addConstraint(Sketcher.Constraint("Coincident", 3, 2, 4, 1))
sketch3.addConstraint(Sketcher.Constraint("Coincident", 4, 2, 5, 1))
sketch3.addConstraint(Sketcher.Constraint("Coincident", 5, 2, 0, 1))
sketch3.addConstraint(Sketcher.Constraint("Horizontal", 1))
sketch3.addConstraint(Sketcher.Constraint("Horizontal", 3))
sketch3.addConstraint(Sketcher.Constraint("Horizontal", 5))
sketch3.addConstraint(Sketcher.Constraint("Horizontal", 4, 3, 2, 2))
sketch3.addConstraint(Sketcher.Constraint("Horizontal", 3, 2, 4, 2))
sketch3.addConstraint(Sketcher.Constraint("Vertical", 4, 3, 6, 3))
sketch3.addConstraint(Sketcher.Constraint("Equal", 3, 5))
sketch3.addConstraint(Sketcher.Constraint("Equal", 0, 2))
sketch3.addConstraint(Sketcher.Constraint("Radius", 4, Q("5.5 mm")))
sketch3.addConstraint(Sketcher.Constraint("Diameter", 6, Q("3.175 mm")))
sketch3.addConstraint(Sketcher.Constraint("DistanceX", 1, 1, 1, 2, Q("20.445991 mm")))
sketch3.addConstraint(Sketcher.Constraint("DistanceX", 3, 2, 3, 1, Q("6.689038 mm")))
sketch3.addConstraint(Sketcher.Constraint("Distance", 0, Q("3.35836 mm")))
sketch3.addConstraint(Sketcher.Constraint("DistanceX", 0, 2, -1, 1, Q("12.462362 mm")))
sketch3.addConstraint(Sketcher.Constraint("DistanceY", -1, 1, 0, 2, Q("20.712052 mm")))
sketch3.addConstraint(Sketcher.Constraint("DistanceY", -1, 1, 6, 3, Q("25.604056 mm")))
pad3 = body.newObject("PartDesign::Pad", "Pad002")
pad3.Profile = sketch3
pad3.Length = 3.5

doc.recompute()
